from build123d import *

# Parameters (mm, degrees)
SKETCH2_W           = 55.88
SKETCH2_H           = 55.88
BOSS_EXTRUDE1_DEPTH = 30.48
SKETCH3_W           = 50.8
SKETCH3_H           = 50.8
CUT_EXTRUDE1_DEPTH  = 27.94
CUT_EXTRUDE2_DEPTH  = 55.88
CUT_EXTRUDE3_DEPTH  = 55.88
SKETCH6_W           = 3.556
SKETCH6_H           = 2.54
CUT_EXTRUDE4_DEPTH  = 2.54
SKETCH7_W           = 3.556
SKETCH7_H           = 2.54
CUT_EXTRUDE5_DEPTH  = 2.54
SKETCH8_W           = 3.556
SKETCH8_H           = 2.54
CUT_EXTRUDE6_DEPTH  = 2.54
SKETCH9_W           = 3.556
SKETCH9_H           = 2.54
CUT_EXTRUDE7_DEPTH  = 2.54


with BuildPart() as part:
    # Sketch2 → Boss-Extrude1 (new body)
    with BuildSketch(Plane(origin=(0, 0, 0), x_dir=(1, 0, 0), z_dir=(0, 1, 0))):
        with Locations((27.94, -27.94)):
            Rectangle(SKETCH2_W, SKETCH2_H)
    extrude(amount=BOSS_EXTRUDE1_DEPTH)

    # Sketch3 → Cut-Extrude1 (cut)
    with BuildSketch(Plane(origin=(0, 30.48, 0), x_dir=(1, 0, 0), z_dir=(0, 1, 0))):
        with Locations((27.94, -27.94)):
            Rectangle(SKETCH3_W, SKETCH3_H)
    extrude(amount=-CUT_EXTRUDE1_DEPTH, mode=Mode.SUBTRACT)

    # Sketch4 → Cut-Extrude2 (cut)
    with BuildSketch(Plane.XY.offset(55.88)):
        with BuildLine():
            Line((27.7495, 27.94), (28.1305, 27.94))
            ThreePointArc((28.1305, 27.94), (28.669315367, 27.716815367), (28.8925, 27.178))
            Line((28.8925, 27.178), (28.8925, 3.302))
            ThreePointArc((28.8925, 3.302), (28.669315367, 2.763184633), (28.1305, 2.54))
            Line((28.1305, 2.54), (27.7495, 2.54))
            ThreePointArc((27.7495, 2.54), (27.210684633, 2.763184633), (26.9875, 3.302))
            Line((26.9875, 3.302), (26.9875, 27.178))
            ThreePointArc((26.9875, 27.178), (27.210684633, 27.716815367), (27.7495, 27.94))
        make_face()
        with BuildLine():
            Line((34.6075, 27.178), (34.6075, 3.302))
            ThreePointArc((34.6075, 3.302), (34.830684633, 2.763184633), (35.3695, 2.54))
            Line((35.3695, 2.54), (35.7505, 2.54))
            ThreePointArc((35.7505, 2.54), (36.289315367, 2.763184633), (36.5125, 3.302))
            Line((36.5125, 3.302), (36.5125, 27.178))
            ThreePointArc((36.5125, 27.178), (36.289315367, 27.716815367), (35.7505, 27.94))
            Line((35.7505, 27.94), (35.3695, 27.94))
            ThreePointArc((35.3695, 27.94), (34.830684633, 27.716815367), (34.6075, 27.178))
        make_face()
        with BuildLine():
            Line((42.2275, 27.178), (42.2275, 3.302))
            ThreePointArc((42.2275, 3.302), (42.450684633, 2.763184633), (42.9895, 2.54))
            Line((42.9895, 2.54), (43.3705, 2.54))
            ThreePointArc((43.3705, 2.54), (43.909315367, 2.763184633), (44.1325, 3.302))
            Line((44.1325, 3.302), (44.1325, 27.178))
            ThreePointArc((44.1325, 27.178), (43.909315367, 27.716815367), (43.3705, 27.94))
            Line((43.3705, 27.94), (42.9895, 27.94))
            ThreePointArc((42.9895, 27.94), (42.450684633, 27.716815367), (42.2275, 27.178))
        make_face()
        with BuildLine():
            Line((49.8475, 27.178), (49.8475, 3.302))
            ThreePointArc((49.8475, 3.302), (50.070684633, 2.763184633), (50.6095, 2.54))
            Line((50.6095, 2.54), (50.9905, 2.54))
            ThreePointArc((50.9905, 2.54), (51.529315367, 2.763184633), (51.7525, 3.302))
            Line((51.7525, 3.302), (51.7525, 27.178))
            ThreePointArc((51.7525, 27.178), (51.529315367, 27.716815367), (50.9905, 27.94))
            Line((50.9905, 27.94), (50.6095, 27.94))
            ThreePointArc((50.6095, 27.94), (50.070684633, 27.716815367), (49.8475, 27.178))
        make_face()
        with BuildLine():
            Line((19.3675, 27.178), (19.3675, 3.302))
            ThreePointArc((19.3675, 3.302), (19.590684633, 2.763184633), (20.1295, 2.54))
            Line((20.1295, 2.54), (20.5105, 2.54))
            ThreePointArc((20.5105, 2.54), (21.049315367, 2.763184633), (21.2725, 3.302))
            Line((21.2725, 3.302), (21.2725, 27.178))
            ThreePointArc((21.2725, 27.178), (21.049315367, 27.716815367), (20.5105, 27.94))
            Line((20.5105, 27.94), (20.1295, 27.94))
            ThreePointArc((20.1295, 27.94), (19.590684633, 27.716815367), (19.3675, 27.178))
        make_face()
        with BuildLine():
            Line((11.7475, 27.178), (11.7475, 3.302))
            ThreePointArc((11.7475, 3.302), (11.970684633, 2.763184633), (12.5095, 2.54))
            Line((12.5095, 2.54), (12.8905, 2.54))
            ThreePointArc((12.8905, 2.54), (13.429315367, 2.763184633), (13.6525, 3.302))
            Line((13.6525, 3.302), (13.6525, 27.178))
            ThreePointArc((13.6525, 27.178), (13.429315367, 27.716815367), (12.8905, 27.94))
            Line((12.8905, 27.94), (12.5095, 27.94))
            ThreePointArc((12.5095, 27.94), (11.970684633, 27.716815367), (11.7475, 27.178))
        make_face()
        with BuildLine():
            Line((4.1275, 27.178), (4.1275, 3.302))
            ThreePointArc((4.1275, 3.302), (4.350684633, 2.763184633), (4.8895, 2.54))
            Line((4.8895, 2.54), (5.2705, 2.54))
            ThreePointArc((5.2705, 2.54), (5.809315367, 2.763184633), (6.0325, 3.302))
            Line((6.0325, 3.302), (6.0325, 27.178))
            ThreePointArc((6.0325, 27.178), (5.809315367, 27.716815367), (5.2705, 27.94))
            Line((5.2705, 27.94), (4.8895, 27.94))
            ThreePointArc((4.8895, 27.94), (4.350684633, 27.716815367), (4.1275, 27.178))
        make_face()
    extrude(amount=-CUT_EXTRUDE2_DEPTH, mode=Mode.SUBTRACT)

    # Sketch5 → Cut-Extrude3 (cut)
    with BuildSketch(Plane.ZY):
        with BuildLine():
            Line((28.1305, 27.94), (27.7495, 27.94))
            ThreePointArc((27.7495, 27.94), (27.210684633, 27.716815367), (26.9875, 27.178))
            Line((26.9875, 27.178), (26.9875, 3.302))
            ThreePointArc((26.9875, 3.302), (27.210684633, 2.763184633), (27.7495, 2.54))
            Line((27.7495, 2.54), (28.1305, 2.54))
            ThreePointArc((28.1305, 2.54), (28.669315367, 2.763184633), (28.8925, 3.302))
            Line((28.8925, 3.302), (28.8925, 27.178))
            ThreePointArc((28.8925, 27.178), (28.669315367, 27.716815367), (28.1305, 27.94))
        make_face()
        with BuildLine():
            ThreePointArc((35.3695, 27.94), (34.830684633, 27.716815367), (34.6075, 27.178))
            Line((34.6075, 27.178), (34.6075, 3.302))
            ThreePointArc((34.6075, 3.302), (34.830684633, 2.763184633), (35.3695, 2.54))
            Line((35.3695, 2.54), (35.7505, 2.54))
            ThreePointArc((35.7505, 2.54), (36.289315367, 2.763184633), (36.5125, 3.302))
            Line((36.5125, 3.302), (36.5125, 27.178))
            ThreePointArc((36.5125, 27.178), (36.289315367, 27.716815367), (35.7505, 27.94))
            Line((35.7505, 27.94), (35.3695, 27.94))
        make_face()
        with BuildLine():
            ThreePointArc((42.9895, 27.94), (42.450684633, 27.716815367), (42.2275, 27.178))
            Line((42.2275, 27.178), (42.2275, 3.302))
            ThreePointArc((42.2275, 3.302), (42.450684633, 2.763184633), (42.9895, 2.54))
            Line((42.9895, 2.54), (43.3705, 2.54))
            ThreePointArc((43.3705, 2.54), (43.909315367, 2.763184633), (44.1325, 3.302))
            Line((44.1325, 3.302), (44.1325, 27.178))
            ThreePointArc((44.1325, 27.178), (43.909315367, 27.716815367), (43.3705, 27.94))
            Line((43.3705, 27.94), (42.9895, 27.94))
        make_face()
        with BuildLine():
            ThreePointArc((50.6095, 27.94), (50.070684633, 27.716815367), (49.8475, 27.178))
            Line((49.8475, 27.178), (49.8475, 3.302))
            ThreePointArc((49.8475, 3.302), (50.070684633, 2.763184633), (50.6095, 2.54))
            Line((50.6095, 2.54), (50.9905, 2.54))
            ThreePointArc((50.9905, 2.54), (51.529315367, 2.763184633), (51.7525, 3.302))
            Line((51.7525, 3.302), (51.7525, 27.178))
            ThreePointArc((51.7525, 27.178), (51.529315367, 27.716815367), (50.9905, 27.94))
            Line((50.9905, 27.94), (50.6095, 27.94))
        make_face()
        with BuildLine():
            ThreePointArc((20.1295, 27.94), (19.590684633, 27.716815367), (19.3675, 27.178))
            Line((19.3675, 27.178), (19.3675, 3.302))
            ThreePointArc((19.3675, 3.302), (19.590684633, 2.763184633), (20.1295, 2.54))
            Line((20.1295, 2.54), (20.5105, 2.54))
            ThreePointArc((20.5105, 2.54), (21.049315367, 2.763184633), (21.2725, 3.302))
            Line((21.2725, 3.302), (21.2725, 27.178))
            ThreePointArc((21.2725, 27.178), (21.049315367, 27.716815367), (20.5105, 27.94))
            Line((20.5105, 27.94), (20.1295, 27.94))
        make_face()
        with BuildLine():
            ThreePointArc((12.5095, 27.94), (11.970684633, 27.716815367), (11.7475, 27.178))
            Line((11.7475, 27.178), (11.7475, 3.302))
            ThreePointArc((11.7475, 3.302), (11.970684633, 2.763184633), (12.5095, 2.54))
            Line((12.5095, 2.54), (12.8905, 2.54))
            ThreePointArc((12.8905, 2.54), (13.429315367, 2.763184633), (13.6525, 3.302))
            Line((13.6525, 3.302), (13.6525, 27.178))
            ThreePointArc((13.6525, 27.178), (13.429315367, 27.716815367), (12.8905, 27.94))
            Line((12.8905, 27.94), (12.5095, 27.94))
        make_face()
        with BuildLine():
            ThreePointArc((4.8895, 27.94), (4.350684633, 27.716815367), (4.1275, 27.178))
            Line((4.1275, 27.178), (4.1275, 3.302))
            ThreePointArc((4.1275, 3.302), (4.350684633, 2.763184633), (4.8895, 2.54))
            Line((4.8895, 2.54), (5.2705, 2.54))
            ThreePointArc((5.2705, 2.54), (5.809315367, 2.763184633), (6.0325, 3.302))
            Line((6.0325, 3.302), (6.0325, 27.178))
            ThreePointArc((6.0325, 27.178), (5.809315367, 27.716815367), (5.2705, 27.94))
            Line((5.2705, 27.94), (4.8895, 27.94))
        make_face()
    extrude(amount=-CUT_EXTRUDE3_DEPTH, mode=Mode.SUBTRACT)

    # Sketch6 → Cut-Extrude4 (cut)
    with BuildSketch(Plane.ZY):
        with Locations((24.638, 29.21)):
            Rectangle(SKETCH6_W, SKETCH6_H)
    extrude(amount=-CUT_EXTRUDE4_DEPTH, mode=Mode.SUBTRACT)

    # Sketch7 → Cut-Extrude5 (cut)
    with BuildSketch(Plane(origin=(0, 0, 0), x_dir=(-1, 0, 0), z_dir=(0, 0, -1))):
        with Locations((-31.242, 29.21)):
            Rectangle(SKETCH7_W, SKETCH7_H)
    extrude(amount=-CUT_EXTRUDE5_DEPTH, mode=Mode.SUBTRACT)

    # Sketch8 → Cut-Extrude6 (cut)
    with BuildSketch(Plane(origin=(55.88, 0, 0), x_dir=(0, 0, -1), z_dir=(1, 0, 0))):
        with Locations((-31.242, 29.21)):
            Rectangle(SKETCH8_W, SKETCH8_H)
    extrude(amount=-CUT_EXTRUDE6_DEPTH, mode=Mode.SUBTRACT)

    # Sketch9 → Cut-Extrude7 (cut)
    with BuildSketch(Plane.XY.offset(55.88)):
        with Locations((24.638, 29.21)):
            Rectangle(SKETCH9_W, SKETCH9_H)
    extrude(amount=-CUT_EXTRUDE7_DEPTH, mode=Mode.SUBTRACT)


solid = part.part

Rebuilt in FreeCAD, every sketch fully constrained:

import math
import FreeCAD as App
import Part
import Sketcher

V = App.Vector
Q = App.Units.Quantity

doc = App.newDocument("Part")
body = doc.addObject("PartDesign::Body", "Body")

# Sketch on XZ plane
sketch1 = body.newObject("Sketcher::SketchObject", "Sketch")
sketch1.AttachmentSupport = (doc.getObject("XZ_Plane"), [""])
sketch1.MapMode = "FlatFace"
sketch1.addGeometry([
    Part.LineSegment(V(0, 0, 0), V(0, 56, 0)),
    Part.LineSegment(V(0, 56, 0), V(56, 56, 0)),
    Part.LineSegment(V(56, 56, 0), V(56, 0, 0)),
    Part.LineSegment(V(56, 0, 0), V(0, 0, 0)),
], False)
sketch1.addConstraint([
    Sketcher.Constraint("Coincident", 0, 2, 1, 1),
    Sketcher.Constraint("Coincident", 1, 2, 2, 1),
    Sketcher.Constraint("Coincident", 2, 2, 3, 1),
    Sketcher.Constraint("Coincident", 3, 2, 0, 1),
    Sketcher.Constraint("Vertical", 0),
    Sketcher.Constraint("Horizontal", 1),
    Sketcher.Constraint("Vertical", 2),
    Sketcher.Constraint("Horizontal", 3),
    Sketcher.Constraint("Coincident", 3, 2, -1, 1),
    Sketcher.Constraint("Equal", 3, 0),
    Sketcher.Constraint("DistanceX", 1, 1, 1, 2, Q("2.2 in")),
])
pad1 = body.newObject("PartDesign::Pad", "Pad")
pad1.Profile = sketch1
pad1.Length = Q("1.2 in")
pad1.Reversed = True

# Sketch on XZ plane
sketch2 = body.newObject("Sketcher::SketchObject", "Sketch001")
sketch2.AttachmentSupport = (doc.getObject("XZ_Plane"), [""])
sketch2.MapMode = "FlatFace"
sketch2.AttachmentOffset = App.Placement(V(0, 0, -1.2 * 25.4), App.Rotation())
sketch2.addGeometry([
    Part.LineSegment(V(3, 3, 0), V(3, 53, 0)),
    Part.LineSegment(V(3, 53, 0), V(53, 53, 0)),
    Part.LineSegment(V(53, 53, 0), V(53, 3, 0)),
    Part.LineSegment(V(53, 3, 0), V(3, 3, 0)),
], False)
sketch2.addConstraint([
    Sketcher.Constraint("Coincident", 0, 2, 1, 1),
    Sketcher.Constraint("Coincident", 1, 2, 2, 1),
    Sketcher.Constraint("Coincident", 2, 2, 3, 1),
    Sketcher.Constraint("Coincident", 3, 2, 0, 1),
    Sketcher.Constraint("Vertical", 0),
    Sketcher.Constraint("Horizontal", 1),
    Sketcher.Constraint("Vertical", 2),
    Sketcher.Constraint("Horizontal", 3),
    Sketcher.Constraint("Equal", 3, 0),
    Sketcher.Constraint("DistanceX", 1, 1, 1, 2, Q("2 in")),
    Sketcher.Constraint("DistanceX", -1, 1, 0, 2, Q("0.1 in")),
    Sketcher.Constraint("DistanceY", -1, 1, 0, 2, Q("2.1 in")),
])
pocket1 = body.newObject("PartDesign::Pocket", "Pocket")
pocket1.Profile = sketch2
pocket1.Length = Q("1.1 in")
pocket1.Reversed = True

# Sketch on XY plane
sketch3 = body.newObject("Sketcher::SketchObject", "Sketch002")
sketch3.AttachmentSupport = (doc.getObject("XY_Plane"), [""])
sketch3.MapMode = "FlatFace"
sketch3.AttachmentOffset = App.Placement(V(0, 0, 2.2 * 25.4), App.Rotation())
sketch3.addGeometry([
    Part.LineSegment(V(28.13, 27.94, 0), V(27.75, 27.94, 0)),  # 0
    Part.ArcOfCircle(Part.Circle(V(27.75, 27.18, 0), V(0, 0, 1), 0.76), math.radians(90), math.radians(180)),  # 1
    Part.LineSegment(V(26.99, 27.18, 0), V(26.99, 3.3, 0)),  # 2
    Part.ArcOfCircle(Part.Circle(V(27.75, 3.3, 0), V(0, 0, 1), 0.76), math.radians(-180), math.radians(-90)),  # 3
    Part.LineSegment(V(27.75, 2.54, 0), V(28.13, 2.54, 0)),  # 4
    Part.ArcOfCircle(Part.Circle(V(28.13, 3.3, 0), V(0, 0, 1), 0.76), math.radians(-90), math.radians(0)),  # 5
    Part.LineSegment(V(28.89, 3.3, 0), V(28.89, 27.18, 0)),  # 6
    Part.ArcOfCircle(Part.Circle(V(28.13, 27.18, 0), V(0, 0, 1), 0.76), math.radians(0), math.radians(90)),  # 7
    Part.LineSegment(V(34.61, 27.18, 0), V(34.61, 3.3, 0)),  # 8
    Part.ArcOfCircle(Part.Circle(V(35.37, 3.3, 0), V(0, 0, 1), 0.76), math.radians(-180), math.radians(-90)),  # 9
    Part.LineSegment(V(35.37, 2.54, 0), V(35.75, 2.54, 0)),  # 10
    Part.ArcOfCircle(Part.Circle(V(35.75, 3.3, 0), V(0, 0, 1), 0.76), math.radians(-90), math.radians(0)),  # 11
    Part.LineSegment(V(36.51, 3.3, 0), V(36.51, 27.18, 0)),  # 12
    Part.ArcOfCircle(Part.Circle(V(35.75, 27.18, 0), V(0, 0, 1), 0.76), math.radians(0), math.radians(90)),  # 13
    Part.LineSegment(V(35.75, 27.94, 0), V(35.37, 27.94, 0)),  # 14
    Part.ArcOfCircle(Part.Circle(V(35.37, 27.18, 0), V(0, 0, 1), 0.76), math.radians(90), math.radians(180)),  # 15
    Part.LineSegment(V(42.23, 27.18, 0), V(42.23, 3.3, 0)),  # 16
    Part.ArcOfCircle(Part.Circle(V(42.99, 3.3, 0), V(0, 0, 1), 0.76), math.radians(-180), math.radians(-90)),  # 17
    Part.LineSegment(V(42.99, 2.54, 0), V(43.37, 2.54, 0)),  # 18
    Part.ArcOfCircle(Part.Circle(V(43.37, 3.3, 0), V(0, 0, 1), 0.76), math.radians(-90), math.radians(0)),  # 19
    Part.LineSegment(V(44.13, 3.3, 0), V(44.13, 27.18, 0)),  # 20
    Part.ArcOfCircle(Part.Circle(V(43.37, 27.18, 0), V(0, 0, 1), 0.76), math.radians(0), math.radians(90)),  # 21
    Part.LineSegment(V(43.37, 27.94, 0), V(42.99, 27.94, 0)),  # 22
    Part.ArcOfCircle(Part.Circle(V(42.99, 27.18, 0), V(0, 0, 1), 0.76), math.radians(90), math.radians(180)),  # 23
    Part.LineSegment(V(49.85, 27.18, 0), V(49.85, 3.3, 0)),  # 24
    Part.ArcOfCircle(Part.Circle(V(50.61, 3.3, 0), V(0, 0, 1), 0.76), math.radians(-180), math.radians(-90)),  # 25
    Part.LineSegment(V(50.61, 2.54, 0), V(50.99, 2.54, 0)),  # 26
    Part.ArcOfCircle(Part.Circle(V(50.99, 3.3, 0), V(0, 0, 1), 0.76), math.radians(-90), math.radians(0)),  # 27
    Part.LineSegment(V(51.75, 3.3, 0), V(51.75, 27.18, 0)),  # 28
    Part.ArcOfCircle(Part.Circle(V(50.99, 27.18, 0), V(0, 0, 1), 0.76), math.radians(0), math.radians(90)),  # 29
    Part.LineSegment(V(50.99, 27.94, 0), V(50.61, 27.94, 0)),  # 30
    Part.ArcOfCircle(Part.Circle(V(50.61, 27.18, 0), V(0, 0, 1), 0.76), math.radians(90), math.radians(180)),  # 31
    Part.LineSegment(V(19.37, 27.18, 0), V(19.37, 3.3, 0)),  # 32
    Part.ArcOfCircle(Part.Circle(V(20.13, 3.3, 0), V(0, 0, 1), 0.76), math.radians(-180), math.radians(-90)),  # 33
    Part.LineSegment(V(20.13, 2.54, 0), V(20.51, 2.54, 0)),  # 34
    Part.ArcOfCircle(Part.Circle(V(20.51, 3.3, 0), V(0, 0, 1), 0.76), math.radians(-90), math.radians(0)),  # 35
    Part.LineSegment(V(21.27, 3.3, 0), V(21.27, 27.18, 0)),  # 36
    Part.ArcOfCircle(Part.Circle(V(20.51, 27.18, 0), V(0, 0, 1), 0.76), math.radians(0), math.radians(90)),  # 37
    Part.LineSegment(V(20.51, 27.94, 0), V(20.13, 27.94, 0)),  # 38
    Part.ArcOfCircle(Part.Circle(V(20.13, 27.18, 0), V(0, 0, 1), 0.76), math.radians(90), math.radians(180)),  # 39
    Part.LineSegment(V(11.75, 27.18, 0), V(11.75, 3.3, 0)),  # 40
    Part.ArcOfCircle(Part.Circle(V(12.51, 3.3, 0), V(0, 0, 1), 0.76), math.radians(-180), math.radians(-90)),  # 41
    Part.LineSegment(V(12.51, 2.54, 0), V(12.89, 2.54, 0)),  # 42
    Part.ArcOfCircle(Part.Circle(V(12.89, 3.3, 0), V(0, 0, 1), 0.76), math.radians(-90), math.radians(0)),  # 43
    Part.LineSegment(V(13.65, 3.3, 0), V(13.65, 27.18, 0)),  # 44
    Part.ArcOfCircle(Part.Circle(V(12.89, 27.18, 0), V(0, 0, 1), 0.76), math.radians(0), math.radians(90)),  # 45
    Part.LineSegment(V(12.89, 27.94, 0), V(12.51, 27.94, 0)),  # 46
    Part.ArcOfCircle(Part.Circle(V(12.51, 27.18, 0), V(0, 0, 1), 0.76), math.radians(90), math.radians(180)),  # 47
    Part.LineSegment(V(4.13, 27.18, 0), V(4.13, 3.3, 0)),  # 48
    Part.ArcOfCircle(Part.Circle(V(4.89, 3.3, 0), V(0, 0, 1), 0.76), math.radians(-180), math.radians(-90)),  # 49
    Part.LineSegment(V(4.89, 2.54, 0), V(5.27, 2.54, 0)),  # 50
    Part.ArcOfCircle(Part.Circle(V(5.27, 3.3, 0), V(0, 0, 1), 0.76), math.radians(-90), math.radians(0)),  # 51
    Part.LineSegment(V(6.03, 3.3, 0), V(6.03, 27.18, 0)),  # 52
    Part.ArcOfCircle(Part.Circle(V(5.27, 27.18, 0), V(0, 0, 1), 0.76), math.radians(0), math.radians(90)),  # 53
    Part.LineSegment(V(5.27, 27.94, 0), V(4.89, 27.94, 0)),  # 54
    Part.ArcOfCircle(Part.Circle(V(4.89, 27.18, 0), V(0, 0, 1), 0.76), math.radians(90), math.radians(180)),  # 55
], False)
sketch3.addConstraint([
    Sketcher.Constraint("Tangent", 0, 2, 1, 1),
    Sketcher.Constraint("Tangent", 1, 2, 2, 1),
    Sketcher.Constraint("Tangent", 2, 2, 3, 1),
    Sketcher.Constraint("Tangent", 3, 2, 4, 1),
    Sketcher.Constraint("Tangent", 4, 2, 5, 1),
    Sketcher.Constraint("Tangent", 5, 2, 6, 1),
    Sketcher.Constraint("Tangent", 6, 2, 7, 1),
    Sketcher.Constraint("Tangent", 7, 2, 0, 1),
    Sketcher.Constraint("Tangent", 8, 2, 9, 1),
    Sketcher.Constraint("Tangent", 9, 2, 10, 1),
    Sketcher.Constraint("Tangent", 10, 2, 11, 1),
    Sketcher.Constraint("Tangent", 11, 2, 12, 1),
    Sketcher.Constraint("Tangent", 12, 2, 13, 1),
    Sketcher.Constraint("Tangent", 13, 2, 14, 1),
    Sketcher.Constraint("Tangent", 14, 2, 15, 1),
    Sketcher.Constraint("Tangent", 15, 2, 8, 1),
    Sketcher.Constraint("Tangent", 16, 2, 17, 1),
    Sketcher.Constraint("Tangent", 17, 2, 18, 1),
    Sketcher.Constraint("Tangent", 18, 2, 19, 1),
    Sketcher.Constraint("Tangent", 19, 2, 20, 1),
    Sketcher.Constraint("Tangent", 20, 2, 21, 1),
    Sketcher.Constraint("Tangent", 21, 2, 22, 1),
    Sketcher.Constraint("Tangent", 22, 2, 23, 1),
    Sketcher.Constraint("Tangent", 23, 2, 16, 1),
    Sketcher.Constraint("Tangent", 24, 2, 25, 1),
    Sketcher.Constraint("Tangent", 25, 2, 26, 1),
    Sketcher.Constraint("Tangent", 26, 2, 27, 1),
    Sketcher.Constraint("Tangent", 27, 2, 28, 1),
    Sketcher.Constraint("Tangent", 28, 2, 29, 1),
    Sketcher.Constraint("Tangent", 29, 2, 30, 1),
    Sketcher.Constraint("Tangent", 30, 2, 31, 1),
    Sketcher.Constraint("Tangent", 31, 2, 24, 1),
    Sketcher.Constraint("Tangent", 32, 2, 33, 1),
    Sketcher.Constraint("Tangent", 33, 2, 34, 1),
    Sketcher.Constraint("Tangent", 34, 2, 35, 1),
    Sketcher.Constraint("Tangent", 35, 2, 36, 1),
    Sketcher.Constraint("Tangent", 36, 2, 37, 1),
    Sketcher.Constraint("Tangent", 37, 2, 38, 1),
    Sketcher.Constraint("Tangent", 38, 2, 39, 1),
    Sketcher.Constraint("Tangent", 39, 2, 32, 1),
    Sketcher.Constraint("Tangent", 40, 2, 41, 1),
    Sketcher.Constraint("Tangent", 41, 2, 42, 1),
    Sketcher.Constraint("Tangent", 42, 2, 43, 1),
    Sketcher.Constraint("Tangent", 43, 2, 44, 1),
    Sketcher.Constraint("Tangent", 44, 2, 45, 1),
    Sketcher.Constraint("Tangent", 45, 2, 46, 1),
    Sketcher.Constraint("Tangent", 46, 2, 47, 1),
    Sketcher.Constraint("Tangent", 47, 2, 40, 1),
    Sketcher.Constraint("Tangent", 48, 2, 49, 1),
    Sketcher.Constraint("Tangent", 49, 2, 50, 1),
    Sketcher.Constraint("Tangent", 50, 2, 51, 1),
    Sketcher.Constraint("Tangent", 51, 2, 52, 1),
    Sketcher.Constraint("Tangent", 52, 2, 53, 1),
    Sketcher.Constraint("Tangent", 53, 2, 54, 1),
    Sketcher.Constraint("Tangent", 54, 2, 55, 1),
    Sketcher.Constraint("Tangent", 55, 2, 48, 1),
    Sketcher.Constraint("Horizontal", 0),
    Sketcher.Constraint("Vertical", 2),
    Sketcher.Constraint("Horizontal", 4),
    Sketcher.Constraint("Vertical", 6),
    Sketcher.Constraint("Vertical", 8),
    Sketcher.Constraint("Horizontal", 10),
    Sketcher.Constraint("Vertical", 12),
    Sketcher.Constraint("Horizontal", 14),
    Sketcher.Constraint("Vertical", 16),
    Sketcher.Constraint("Horizontal", 18),
    Sketcher.Constraint("Vertical", 20),
    Sketcher.Constraint("Horizontal", 22),
    Sketcher.Constraint("Vertical", 24),
    Sketcher.Constraint("Horizontal", 26),
    Sketcher.Constraint("Vertical", 28),
    Sketcher.Constraint("Horizontal", 30),
    Sketcher.Constraint("Vertical", 32),
    Sketcher.Constraint("Horizontal", 34),
    Sketcher.Constraint("Vertical", 36),
    Sketcher.Constraint("Horizontal", 38),
    Sketcher.Constraint("Vertical", 40),
    Sketcher.Constraint("Horizontal", 42),
    Sketcher.Constraint("Vertical", 44),
    Sketcher.Constraint("Horizontal", 46),
    Sketcher.Constraint("Vertical", 48),
    Sketcher.Constraint("Horizontal", 50),
    Sketcher.Constraint("Vertical", 52),
    Sketcher.Constraint("Horizontal", 54),
    Sketcher.Constraint("Equal", 1, 3),
    Sketcher.Constraint("Equal", 3, 5),
    Sketcher.Constraint("Equal", 5, 7),
    Sketcher.Constraint("Equal", 7, 9),
    Sketcher.Constraint("Equal", 9, 11),
    Sketcher.Constraint("Equal", 11, 13),
    Sketcher.Constraint("Equal", 13, 15),
    Sketcher.Constraint("Equal", 15, 17),
    Sketcher.Constraint("Equal", 17, 19),
    Sketcher.Constraint("Equal", 19, 21),
    Sketcher.Constraint("Equal", 21, 23),
    Sketcher.Constraint("Equal", 23, 25),
    Sketcher.Constraint("Equal", 25, 27),
    Sketcher.Constraint("Equal", 27, 29),
    Sketcher.Constraint("Equal", 29, 31),
    Sketcher.Constraint("Equal", 31, 33),
    Sketcher.Constraint("Equal", 33, 35),
    Sketcher.Constraint("Equal", 35, 37),
    Sketcher.Constraint("Equal", 37, 39),
    Sketcher.Constraint("Equal", 39, 41),
    Sketcher.Constraint("Equal", 41, 43),
    Sketcher.Constraint("Equal", 43, 45),
    Sketcher.Constraint("Equal", 45, 47),
    Sketcher.Constraint("Equal", 47, 49),
    Sketcher.Constraint("Equal", 49, 51),
    Sketcher.Constraint("Equal", 51, 53),
    Sketcher.Constraint("Equal", 53, 55),
    Sketcher.Constraint("Horizontal", 5, 3, 9, 3),
    Sketcher.Constraint("Horizontal", 7, 3, 13, 3),
    Sketcher.Constraint("Horizontal", 11, 3, 17, 3),
    Sketcher.Constraint("Horizontal", 15, 3, 21, 3),
    Sketcher.Constraint("Horizontal", 19, 3, 25, 3),
    Sketcher.Constraint("Horizontal", 23, 3, 29, 3),
    Sketcher.Constraint("Horizontal", 27, 3, 33, 3),
    Sketcher.Constraint("Horizontal", 31, 3, 37, 3),
    Sketcher.Constraint("Horizontal", 35, 3, 41, 3),
    Sketcher.Constraint("Horizontal", 39, 3, 45, 3),
    Sketcher.Constraint("Horizontal", 43, 3, 49, 3),
    Sketcher.Constraint("Horizontal", 47, 3, 53, 3),
    Sketcher.Constraint("Equal", 4, 10),
    Sketcher.Constraint("Equal", 14, 18),
    Sketcher.Constraint("Equal", 22, 26),
    Sketcher.Constraint("Equal", 30, 34),
    Sketcher.Constraint("Equal", 38, 42),
    Sketcher.Constraint("Equal", 46, 50),
    Sketcher.Constraint("Radius", 1, Q("0.03 in")),
    Sketcher.Constraint("DistanceY", 2, 2, 2, 1, Q("0.94 in")),
    Sketcher.Constraint("DistanceY", -1, 1, 0, 2, Q("1.1 in")),
    Sketcher.Constraint("DistanceX", 0, 2, 0, 1, Q("0.015 in")),
    Sketcher.Constraint("DistanceX", -1, 1, 1, 2, Q("1.0625 in")),
    Sketcher.Constraint("DistanceX", -1, 1, 11, 2, Q("1.4375 in")),
    Sketcher.Constraint("DistanceX", -1, 1, 17, 3, Q("1.6925 in")),
    Sketcher.Constraint("DistanceX", -1, 1, 25, 3, Q("1.9925 in")),
    Sketcher.Constraint("DistanceX", -1, 1, 33, 3, Q("0.7925 in")),
    Sketcher.Constraint("DistanceX", -1, 1, 41, 3, Q("0.4925 in")),
    Sketcher.Constraint("DistanceX", -1, 1, 49, 3, Q("0.1925 in")),
])
pocket2 = body.newObject("PartDesign::Pocket", "Pocket001")
pocket2.Profile = sketch3
pocket2.Length = Q("2.2 in")

# Sketch on YZ plane
sketch4 = body.newObject("Sketcher::SketchObject", "Sketch003")
sketch4.AttachmentSupport = (doc.getObject("YZ_Plane"), [""])
sketch4.MapMode = "FlatFace"
sketch4.addGeometry([
    Part.LineSegment(V(27.94, 28.13, 0), V(27.94, 27.75, 0)),  # 0
    Part.ArcOfCircle(Part.Circle(V(27.18, 27.75, 0), V(0, 0, 1), 0.76), math.radians(-90), math.radians(0)),  # 1
    Part.LineSegment(V(27.18, 26.99, 0), V(3.3, 26.99, 0)),  # 2
    Part.ArcOfCircle(Part.Circle(V(3.3, 27.75, 0), V(0, 0, 1), 0.76), math.radians(-180), math.radians(-90)),  # 3
    Part.LineSegment(V(2.54, 27.75, 0), V(2.54, 28.13, 0)),  # 4
    Part.ArcOfCircle(Part.Circle(V(3.3, 28.13, 0), V(0, 0, 1), 0.76), math.radians(90), math.radians(180)),  # 5
    Part.LineSegment(V(3.3, 28.89, 0), V(27.18, 28.89, 0)),  # 6
    Part.ArcOfCircle(Part.Circle(V(27.18, 28.13, 0), V(0, 0, 1), 0.76), math.radians(0), math.radians(90)),  # 7
    Part.ArcOfCircle(Part.Circle(V(27.18, 35.37, 0), V(0, 0, 1), 0.76), math.radians(-90), math.radians(0)),  # 8
    Part.LineSegment(V(27.18, 34.61, 0), V(3.3, 34.61, 0)),  # 9
    Part.ArcOfCircle(Part.Circle(V(3.3, 35.37, 0), V(0, 0, 1), 0.76), math.radians(-180), math.radians(-90)),  # 10
    Part.LineSegment(V(2.54, 35.37, 0), V(2.54, 35.75, 0)),  # 11
    Part.ArcOfCircle(Part.Circle(V(3.3, 35.75, 0), V(0, 0, 1), 0.76), math.radians(90), math.radians(180)),  # 12
    Part.LineSegment(V(3.3, 36.51, 0), V(27.18, 36.51, 0)),  # 13
    Part.ArcOfCircle(Part.Circle(V(27.18, 35.75, 0), V(0, 0, 1), 0.76), math.radians(0), math.radians(90)),  # 14
    Part.LineSegment(V(27.94, 35.75, 0), V(27.94, 35.37, 0)),  # 15
    Part.ArcOfCircle(Part.Circle(V(27.18, 42.99, 0), V(0, 0, 1), 0.76), math.radians(-90), math.radians(0)),  # 16
    Part.LineSegment(V(27.18, 42.23, 0), V(3.3, 42.23, 0)),  # 17
    Part.ArcOfCircle(Part.Circle(V(3.3, 42.99, 0), V(0, 0, 1), 0.76), math.radians(-180), math.radians(-90)),  # 18
    Part.LineSegment(V(2.54, 42.99, 0), V(2.54, 43.37, 0)),  # 19
    Part.ArcOfCircle(Part.Circle(V(3.3, 43.37, 0), V(0, 0, 1), 0.76), math.radians(90), math.radians(180)),  # 20
    Part.LineSegment(V(3.3, 44.13, 0), V(27.18, 44.13, 0)),  # 21
    Part.ArcOfCircle(Part.Circle(V(27.18, 43.37, 0), V(0, 0, 1), 0.76), math.radians(0), math.radians(90)),  # 22
    Part.LineSegment(V(27.94, 43.37, 0), V(27.94, 42.99, 0)),  # 23
    Part.ArcOfCircle(Part.Circle(V(27.18, 50.61, 0), V(0, 0, 1), 0.76), math.radians(-90), math.radians(0)),  # 24
    Part.LineSegment(V(27.18, 49.85, 0), V(3.3, 49.85, 0)),  # 25
    Part.ArcOfCircle(Part.Circle(V(3.3, 50.61, 0), V(0, 0, 1), 0.76), math.radians(-180), math.radians(-90)),  # 26
    Part.LineSegment(V(2.54, 50.61, 0), V(2.54, 50.99, 0)),  # 27
    Part.ArcOfCircle(Part.Circle(V(3.3, 50.99, 0), V(0, 0, 1), 0.76), math.radians(90), math.radians(180)),  # 28
    Part.LineSegment(V(3.3, 51.75, 0), V(27.18, 51.75, 0)),  # 29
    Part.ArcOfCircle(Part.Circle(V(27.18, 50.99, 0), V(0, 0, 1), 0.76), math.radians(0), math.radians(90)),  # 30
    Part.LineSegment(V(27.94, 50.99, 0), V(27.94, 50.61, 0)),  # 31
    Part.ArcOfCircle(Part.Circle(V(27.18, 20.13, 0), V(0, 0, 1), 0.76), math.radians(-90), math.radians(0)),  # 32
    Part.LineSegment(V(27.18, 19.37, 0), V(3.3, 19.37, 0)),  # 33
    Part.ArcOfCircle(Part.Circle(V(3.3, 20.13, 0), V(0, 0, 1), 0.76), math.radians(-180), math.radians(-90)),  # 34
    Part.LineSegment(V(2.54, 20.13, 0), V(2.54, 20.51, 0)),  # 35
    Part.ArcOfCircle(Part.Circle(V(3.3, 20.51, 0), V(0, 0, 1), 0.76), math.radians(90), math.radians(180)),  # 36
    Part.LineSegment(V(3.3, 21.27, 0), V(27.18, 21.27, 0)),  # 37
    Part.ArcOfCircle(Part.Circle(V(27.18, 20.51, 0), V(0, 0, 1), 0.76), math.radians(0), math.radians(90)),  # 38
    Part.LineSegment(V(27.94, 20.51, 0), V(27.94, 20.13, 0)),  # 39
    Part.ArcOfCircle(Part.Circle(V(27.18, 12.51, 0), V(0, 0, 1), 0.76), math.radians(-90), math.radians(0)),  # 40
    Part.LineSegment(V(27.18, 11.75, 0), V(3.3, 11.75, 0)),  # 41
    Part.ArcOfCircle(Part.Circle(V(3.3, 12.51, 0), V(0, 0, 1), 0.76), math.radians(-180), math.radians(-90)),  # 42
    Part.LineSegment(V(2.54, 12.51, 0), V(2.54, 12.89, 0)),  # 43
    Part.ArcOfCircle(Part.Circle(V(3.3, 12.89, 0), V(0, 0, 1), 0.76), math.radians(90), math.radians(180)),  # 44
    Part.LineSegment(V(3.3, 13.65, 0), V(27.18, 13.65, 0)),  # 45
    Part.ArcOfCircle(Part.Circle(V(27.18, 12.89, 0), V(0, 0, 1), 0.76), math.radians(0), math.radians(90)),  # 46
    Part.LineSegment(V(27.94, 12.89, 0), V(27.94, 12.51, 0)),  # 47
    Part.ArcOfCircle(Part.Circle(V(27.18, 4.89, 0), V(0, 0, 1), 0.76), math.radians(-90), math.radians(0)),  # 48
    Part.LineSegment(V(27.18, 4.13, 0), V(3.3, 4.13, 0)),  # 49
    Part.ArcOfCircle(Part.Circle(V(3.3, 4.89, 0), V(0, 0, 1), 0.76), math.radians(-180), math.radians(-90)),  # 50
    Part.LineSegment(V(2.54, 4.89, 0), V(2.54, 5.27, 0)),  # 51
    Part.ArcOfCircle(Part.Circle(V(3.3, 5.27, 0), V(0, 0, 1), 0.76), math.radians(90), math.radians(180)),  # 52
    Part.LineSegment(V(3.3, 6.03, 0), V(27.18, 6.03, 0)),  # 53
    Part.ArcOfCircle(Part.Circle(V(27.18, 5.27, 0), V(0, 0, 1), 0.76), math.radians(0), math.radians(90)),  # 54
    Part.LineSegment(V(27.94, 5.27, 0), V(27.94, 4.89, 0)),  # 55
], False)
sketch4.addConstraint([
    Sketcher.Constraint("Tangent", 0, 2, 1, 2),
    Sketcher.Constraint("Tangent", 1, 1, 2, 1),
    Sketcher.Constraint("Tangent", 2, 2, 3, 2),
    Sketcher.Constraint("Tangent", 3, 1, 4, 1),
    Sketcher.Constraint("Tangent", 4, 2, 5, 2),
    Sketcher.Constraint("Tangent", 5, 1, 6, 1),
    Sketcher.Constraint("Tangent", 6, 2, 7, 2),
    Sketcher.Constraint("Tangent", 7, 1, 0, 1),
    Sketcher.Constraint("Tangent", 8, 1, 9, 1),
    Sketcher.Constraint("Tangent", 9, 2, 10, 2),
    Sketcher.Constraint("Tangent", 10, 1, 11, 1),
    Sketcher.Constraint("Tangent", 11, 2, 12, 2),
    Sketcher.Constraint("Tangent", 12, 1, 13, 1),
    Sketcher.Constraint("Tangent", 13, 2, 14, 2),
    Sketcher.Constraint("Tangent", 14, 1, 15, 1),
    Sketcher.Constraint("Tangent", 15, 2, 8, 2),
    Sketcher.Constraint("Tangent", 16, 1, 17, 1),
    Sketcher.Constraint("Tangent", 17, 2, 18, 2),
    Sketcher.Constraint("Tangent", 18, 1, 19, 1),
    Sketcher.Constraint("Tangent", 19, 2, 20, 2),
    Sketcher.Constraint("Tangent", 20, 1, 21, 1),
    Sketcher.Constraint("Tangent", 21, 2, 22, 2),
    Sketcher.Constraint("Tangent", 22, 1, 23, 1),
    Sketcher.Constraint("Tangent", 23, 2, 16, 2),
    Sketcher.Constraint("Tangent", 24, 1, 25, 1),
    Sketcher.Constraint("Tangent", 25, 2, 26, 2),
    Sketcher.Constraint("Tangent", 26, 1, 27, 1),
    Sketcher.Constraint("Tangent", 27, 2, 28, 2),
    Sketcher.Constraint("Tangent", 28, 1, 29, 1),
    Sketcher.Constraint("Tangent", 29, 2, 30, 2),
    Sketcher.Constraint("Tangent", 30, 1, 31, 1),
    Sketcher.Constraint("Tangent", 31, 2, 24, 2),
    Sketcher.Constraint("Tangent", 32, 1, 33, 1),
    Sketcher.Constraint("Tangent", 33, 2, 34, 2),
    Sketcher.Constraint("Tangent", 34, 1, 35, 1),
    Sketcher.Constraint("Tangent", 35, 2, 36, 2),
    Sketcher.Constraint("Tangent", 36, 1, 37, 1),
    Sketcher.Constraint("Tangent", 37, 2, 38, 2),
    Sketcher.Constraint("Tangent", 38, 1, 39, 1),
    Sketcher.Constraint("Tangent", 39, 2, 32, 2),
    Sketcher.Constraint("Tangent", 40, 1, 41, 1),
    Sketcher.Constraint("Tangent", 41, 2, 42, 2),
    Sketcher.Constraint("Tangent", 42, 1, 43, 1),
    Sketcher.Constraint("Tangent", 43, 2, 44, 2),
    Sketcher.Constraint("Tangent", 44, 1, 45, 1),
    Sketcher.Constraint("Tangent", 45, 2, 46, 2),
    Sketcher.Constraint("Tangent", 46, 1, 47, 1),
    Sketcher.Constraint("Tangent", 47, 2, 40, 2),
    Sketcher.Constraint("Tangent", 48, 1, 49, 1),
    Sketcher.Constraint("Tangent", 49, 2, 50, 2),
    Sketcher.Constraint("Tangent", 50, 1, 51, 1),
    Sketcher.Constraint("Tangent", 51, 2, 52, 2),
    Sketcher.Constraint("Tangent", 52, 1, 53, 1),
    Sketcher.Constraint("Tangent", 53, 2, 54, 2),
    Sketcher.Constraint("Tangent", 54, 1, 55, 1),
    Sketcher.Constraint("Tangent", 55, 2, 48, 2),
    Sketcher.Constraint("Vertical", 0),
    Sketcher.Constraint("Horizontal", 2),
    Sketcher.Constraint("Vertical", 4),
    Sketcher.Constraint("Horizontal", 6),
    Sketcher.Constraint("Horizontal", 9),
    Sketcher.Constraint("Vertical", 11),
    Sketcher.Constraint("Horizontal", 13),
    Sketcher.Constraint("Vertical", 15),
    Sketcher.Constraint("Horizontal", 17),
    Sketcher.Constraint("Vertical", 19),
    Sketcher.Constraint("Horizontal", 21),
    Sketcher.Constraint("Vertical", 23),
    Sketcher.Constraint("Horizontal", 25),
    Sketcher.Constraint("Vertical", 27),
    Sketcher.Constraint("Horizontal", 29),
    Sketcher.Constraint("Vertical", 31),
    Sketcher.Constraint("Horizontal", 33),
    Sketcher.Constraint("Vertical", 35),
    Sketcher.Constraint("Horizontal", 37),
    Sketcher.Constraint("Vertical", 39),
    Sketcher.Constraint("Horizontal", 41),
    Sketcher.Constraint("Vertical", 43),
    Sketcher.Constraint("Horizontal", 45),
    Sketcher.Constraint("Vertical", 47),
    Sketcher.Constraint("Horizontal", 49),
    Sketcher.Constraint("Vertical", 51),
    Sketcher.Constraint("Horizontal", 53),
    Sketcher.Constraint("Vertical", 55),
    Sketcher.Constraint("Equal", 1, 3),
    Sketcher.Constraint("Equal", 3, 5),
    Sketcher.Constraint("Equal", 5, 7),
    Sketcher.Constraint("Equal", 7, 8),
    Sketcher.Constraint("Equal", 8, 10),
    Sketcher.Constraint("Equal", 10, 12),
    Sketcher.Constraint("Equal", 12, 14),
    Sketcher.Constraint("Equal", 14, 16),
    Sketcher.Constraint("Equal", 16, 18),
    Sketcher.Constraint("Equal", 18, 20),
    Sketcher.Constraint("Equal", 20, 22),
    Sketcher.Constraint("Equal", 22, 24),
    Sketcher.Constraint("Equal", 24, 26),
    Sketcher.Constraint("Equal", 26, 28),
    Sketcher.Constraint("Equal", 28, 30),
    Sketcher.Constraint("Equal", 30, 32),
    Sketcher.Constraint("Equal", 32, 34),
    Sketcher.Constraint("Equal", 34, 36),
    Sketcher.Constraint("Equal", 36, 38),
    Sketcher.Constraint("Equal", 38, 40),
    Sketcher.Constraint("Equal", 40, 42),
    Sketcher.Constraint("Equal", 42, 44),
    Sketcher.Constraint("Equal", 44, 46),
    Sketcher.Constraint("Equal", 46, 48),
    Sketcher.Constraint("Equal", 48, 50),
    Sketcher.Constraint("Equal", 50, 52),
    Sketcher.Constraint("Equal", 52, 54),
    Sketcher.Constraint("Vertical", 7, 3, 8, 3),
    Sketcher.Constraint("Vertical", 5, 3, 10, 3),
    Sketcher.Constraint("Vertical", 14, 3, 16, 3),
    Sketcher.Constraint("Vertical", 12, 3, 18, 3),
    Sketcher.Constraint("Vertical", 22, 3, 24, 3),
    Sketcher.Constraint("Vertical", 20, 3, 26, 3),
    Sketcher.Constraint("Vertical", 30, 3, 32, 3),
    Sketcher.Constraint("Vertical", 28, 3, 34, 3),
    Sketcher.Constraint("Vertical", 38, 3, 40, 3),
    Sketcher.Constraint("Vertical", 36, 3, 42, 3),
    Sketcher.Constraint("Vertical", 46, 3, 48, 3),
    Sketcher.Constraint("Vertical", 44, 3, 50, 3),
    Sketcher.Constraint("Equal", 4, 11),
    Sketcher.Constraint("Equal", 15, 19),
    Sketcher.Constraint("Equal", 23, 27),
    Sketcher.Constraint("Equal", 31, 35),
    Sketcher.Constraint("Equal", 39, 43),
    Sketcher.Constraint("Equal", 47, 51),
    Sketcher.Constraint("Radius", 1, Q("0.03 in")),
    Sketcher.Constraint("DistanceX", 2, 2, 2, 1, Q("0.94 in")),
    Sketcher.Constraint("DistanceX", -1, 1, 0, 2, Q("1.1 in")),
    Sketcher.Constraint("DistanceY", 0, 2, 0, 1, Q("0.015 in")),
    Sketcher.Constraint("DistanceY", -1, 1, 1, 1, Q("1.0625 in")),
    Sketcher.Constraint("DistanceY", -1, 1, 12, 1, Q("1.4375 in")),
    Sketcher.Constraint("DistanceY", -1, 1, 16, 3, Q("1.6925 in")),
    Sketcher.Constraint("DistanceY", -1, 1, 24, 3, Q("1.9925 in")),
    Sketcher.Constraint("DistanceY", -1, 1, 32, 3, Q("0.7925 in")),
    Sketcher.Constraint("DistanceY", -1, 1, 40, 3, Q("0.4925 in")),
    Sketcher.Constraint("DistanceY", -1, 1, 48, 3, Q("0.1925 in")),
])
pocket3 = body.newObject("PartDesign::Pocket", "Pocket002")
pocket3.Profile = sketch4
pocket3.Length = Q("2.2 in")
pocket3.Reversed = True

# Sketch on YZ plane
sketch5 = body.newObject("Sketcher::SketchObject", "Sketch004")
sketch5.AttachmentSupport = (doc.getObject("YZ_Plane"), [""])
sketch5.MapMode = "FlatFace"
sketch5.addGeometry([
    Part.LineSegment(V(30.5, 22.9, 0), V(27.9, 22.9, 0)),
    Part.LineSegment(V(27.9, 22.9, 0), V(27.9, 26.4, 0)),
    Part.LineSegment(V(27.9, 26.4, 0), V(30.5, 26.4, 0)),
    Part.LineSegment(V(30.5, 26.4, 0), V(30.5, 22.9, 0)),
], False)
sketch5.addConstraint([
    Sketcher.Constraint("Coincident", 0, 2, 1, 1),
    Sketcher.Constraint("Coincident", 1, 2, 2, 1),
    Sketcher.Constraint("Coincident", 2, 2, 3, 1),
    Sketcher.Constraint("Coincident", 3, 2, 0, 1),
    Sketcher.Constraint("Horizontal", 0),
    Sketcher.Constraint("Vertical", 1),
    Sketcher.Constraint("Horizontal", 2),
    Sketcher.Constraint("Vertical", 3),
    Sketcher.Constraint("DistanceX", 0, 2, 0, 1, Q("0.1 in")),
    Sketcher.Constraint("DistanceY", 1, 1, 1, 2, Q("0.14 in")),
    Sketcher.Constraint("DistanceX", -1, 1, 0, 2, Q("1.1 in")),
    Sketcher.Constraint("DistanceY", -1, 1, 0, 2, Q("0.9 in")),
])
pocket4 = body.newObject("PartDesign::Pocket", "Pocket003")
pocket4.Profile = sketch5
pocket4.Length = Q("0.1 in")
pocket4.Reversed = True

# Sketch on XY plane
sketch6 = body.newObject("Sketcher::SketchObject", "Sketch005")
sketch6.AttachmentSupport = (doc.getObject("XY_Plane"), [""])
sketch6.MapMode = "FlatFace"
sketch6.addGeometry([
    Part.LineSegment(V(33, 30.5, 0), V(33, 27.9, 0)),
    Part.LineSegment(V(33, 27.9, 0), V(29.5, 27.9, 0)),
    Part.LineSegment(V(29.5, 27.9, 0), V(29.5, 30.5, 0)),
    Part.LineSegment(V(29.5, 30.5, 0), V(33, 30.5, 0)),
], False)
sketch6.addConstraint([
    Sketcher.Constraint("Coincident", 0, 2, 1, 1),
    Sketcher.Constraint("Coincident", 1, 2, 2, 1),
    Sketcher.Constraint("Coincident", 2, 2, 3, 1),
    Sketcher.Constraint("Coincident", 3, 2, 0, 1),
    Sketcher.Constraint("Vertical", 0),
    Sketcher.Constraint("Horizontal", 1),
    Sketcher.Constraint("Vertical", 2),
    Sketcher.Constraint("Horizontal", 3),
    Sketcher.Constraint("DistanceY", 0, 2, 0, 1, Q("0.1 in")),
    Sketcher.Constraint("DistanceX", 1, 2, 1, 1, Q("0.14 in")),
    Sketcher.Constraint("DistanceX", -1, 1, 0, 2, Q("1.3 in")),
    Sketcher.Constraint("DistanceY", -1, 1, 0, 2, Q("1.1 in")),
])
pocket5 = body.newObject("PartDesign::Pocket", "Pocket004")
pocket5.Profile = sketch6
pocket5.Length = Q("0.1 in")
pocket5.Reversed = True

# Sketch on YZ plane
sketch7 = body.newObject("Sketcher::SketchObject", "Sketch006")
sketch7.AttachmentSupport = (doc.getObject("YZ_Plane"), [""])
sketch7.MapMode = "FlatFace"
sketch7.AttachmentOffset = App.Placement(V(0, 0, 2.2 * 25.4), App.Rotation())
sketch7.addGeometry([
    Part.LineSegment(V(30.5, 33, 0), V(27.9, 33, 0)),
    Part.LineSegment(V(27.9, 33, 0), V(27.9, 29.5, 0)),
    Part.LineSegment(V(27.9, 29.5, 0), V(30.5, 29.5, 0)),
    Part.LineSegment(V(30.5, 29.5, 0), V(30.5, 33, 0)),
], False)
sketch7.addConstraint([
    Sketcher.Constraint("Coincident", 0, 2, 1, 1),
    Sketcher.Constraint("Coincident", 1, 2, 2, 1),
    Sketcher.Constraint("Coincident", 2, 2, 3, 1),
    Sketcher.Constraint("Coincident", 3, 2, 0, 1),
    Sketcher.Constraint("Horizontal", 0),
    Sketcher.Constraint("Vertical", 1),
    Sketcher.Constraint("Horizontal", 2),
    Sketcher.Constraint("Vertical", 3),
    Sketcher.Constraint("DistanceX", 0, 2, 0, 1, Q("0.1 in")),
    Sketcher.Constraint("DistanceY", 1, 2, 1, 1, Q("0.14 in")),
    Sketcher.Constraint("DistanceX", -1, 1, 0, 2, Q("1.1 in")),
    Sketcher.Constraint("DistanceY", -1, 1, 0, 2, Q("1.3 in")),
])
pocket6 = body.newObject("PartDesign::Pocket", "Pocket005")
pocket6.Profile = sketch7
pocket6.Length = Q("0.1 in")

# Sketch on XY plane
sketch8 = body.newObject("Sketcher::SketchObject", "Sketch007")
sketch8.AttachmentSupport = (doc.getObject("XY_Plane"), [""])
sketch8.MapMode = "FlatFace"
sketch8.AttachmentOffset = App.Placement(V(0, 0, 2.2 * 25.4), App.Rotation())
sketch8.addGeometry([
    Part.LineSegment(V(22.9, 30.5, 0), V(22.9, 27.9, 0)),
    Part.LineSegment(V(22.9, 27.9, 0), V(26.4, 27.9, 0)),
    Part.LineSegment(V(26.4, 27.9, 0), V(26.4, 30.5, 0)),
    Part.LineSegment(V(26.4, 30.5, 0), V(22.9, 30.5, 0)),
], False)
sketch8.addConstraint([
    Sketcher.Constraint("Coincident", 0, 2, 1, 1),
    Sketcher.Constraint("Coincident", 1, 2, 2, 1),
    Sketcher.Constraint("Coincident", 2, 2, 3, 1),
    Sketcher.Constraint("Coincident", 3, 2, 0, 1),
    Sketcher.Constraint("Vertical", 0),
    Sketcher.Constraint("Horizontal", 1),
    Sketcher.Constraint("Vertical", 2),
    Sketcher.Constraint("Horizontal", 3),
    Sketcher.Constraint("DistanceY", 0, 2, 0, 1, Q("0.1 in")),
    Sketcher.Constraint("DistanceX", 1, 1, 1, 2, Q("0.14 in")),
    Sketcher.Constraint("DistanceX", -1, 1, 0, 2, Q("0.9 in")),
    Sketcher.Constraint("DistanceY", -1, 1, 0, 2, Q("1.1 in")),
])
pocket7 = body.newObject("PartDesign::Pocket", "Pocket006")
pocket7.Profile = sketch8
pocket7.Length = Q("0.1 in")

doc.recompute()
